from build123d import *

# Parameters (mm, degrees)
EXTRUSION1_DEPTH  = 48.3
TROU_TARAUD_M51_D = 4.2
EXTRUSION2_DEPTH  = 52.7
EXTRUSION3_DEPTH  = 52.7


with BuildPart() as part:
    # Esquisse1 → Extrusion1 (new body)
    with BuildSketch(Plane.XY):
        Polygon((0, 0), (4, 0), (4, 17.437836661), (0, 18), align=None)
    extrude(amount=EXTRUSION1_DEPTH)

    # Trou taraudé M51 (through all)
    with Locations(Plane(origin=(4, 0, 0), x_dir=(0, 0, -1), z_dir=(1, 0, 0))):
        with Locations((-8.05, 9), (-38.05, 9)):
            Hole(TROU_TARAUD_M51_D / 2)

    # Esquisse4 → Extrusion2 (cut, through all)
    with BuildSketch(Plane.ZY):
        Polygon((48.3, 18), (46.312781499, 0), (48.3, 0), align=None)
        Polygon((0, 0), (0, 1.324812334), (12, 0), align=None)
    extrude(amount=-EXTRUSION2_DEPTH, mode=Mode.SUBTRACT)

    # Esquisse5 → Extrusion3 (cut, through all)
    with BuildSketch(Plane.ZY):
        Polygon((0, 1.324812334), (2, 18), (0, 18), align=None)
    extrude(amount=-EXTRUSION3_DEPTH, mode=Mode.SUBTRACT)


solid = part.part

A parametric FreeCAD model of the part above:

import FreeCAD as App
import Part
import Sketcher

V = App.Vector
Q = App.Units.Quantity


def add_polygon(sketch, points):
    """Adds a closed chain of lines whose ends are joined by coincident constraints."""
    first, n = sketch.GeometryCount, len(points)
    for a, b in zip(points, points[1:] + points[:1]):
        sketch.addGeometry(Part.LineSegment(App.Vector(*a, 0), App.Vector(*b, 0)), False)
    for i in range(n):
        sketch.addConstraint(Sketcher.Constraint("Coincident", first + i, 2, first + (i + 1) % n, 1))

doc = App.newDocument("Part")
body = doc.addObject("PartDesign::Body", "Body")

# Sketch on XY plane
sketch1 = doc.addObject("Sketcher::SketchObject", "Sketch")
body.addObject(sketch1)
sketch1.AttachmentSupport = (doc.XY_Plane, [""])
sketch1.MapMode = "FlatFace"
add_polygon(sketch1, [(0, 0), (4, 0), (4, 17.4), (0, 18)])  # lines 0-3
sketch1.addConstraint(Sketcher.Constraint("Horizontal", 0))
sketch1.addConstraint(Sketcher.Constraint("Vertical", 1))
sketch1.addConstraint(Sketcher.Constraint("Vertical", 3))
sketch1.addConstraint(Sketcher.Constraint("Coincident", 3, 2, -1, 1))
sketch1.addConstraint(Sketcher.Constraint("DistanceX", 0, 1, 0, 2, Q("4 mm")))
sketch1.addConstraint(Sketcher.Constraint("DistanceY", 3, 2, 3, 1, Q("18 mm")))
sketch1.addConstraint(Sketcher.Constraint("Angle", 2, Q("172 deg")))
pad1 = doc.addObject("PartDesign::Pad", "Pad")
body.addObject(pad1)
pad1.Profile = sketch1
pad1.Length = 48.3

# Sketch on YZ plane
sketch2 = doc.addObject("Sketcher::SketchObject", "Sketch001")
body.addObject(sketch2)
sketch2.AttachmentSupport = (doc.YZ_Plane, [""])
sketch2.MapMode = "FlatFace"
sketch2.AttachmentOffset = App.Placement(V(0, 0, 4), App.Rotation())
sketch2.addGeometry(Part.Circle(V(9, 8.1, 0), V(0, 0, 1), 2.1), False)
sketch2.addGeometry(Part.Circle(V(9, 38, 0), V(0, 0, 1), 2.1), False)
sketch2.addConstraint(Sketcher.Constraint("Equal", 0, 1))
sketch2.addConstraint(Sketcher.Constraint("Vertical", 0, 3, 1, 3))
sketch2.addConstraint(Sketcher.Constraint("Diameter", 0, Q("4.2 mm")))
sketch2.addConstraint(Sketcher.Constraint("DistanceX", -1, 1, 0, 3, Q("9 mm")))
sketch2.addConstraint(Sketcher.Constraint("DistanceY", 0, 3, 1, 3, Q("30 mm")))
sketch2.addConstraint(Sketcher.Constraint("DistanceY", -1, 1, 0, 3, Q("8.05 mm")))
doc.recompute()
hole = doc.addObject("PartDesign::Hole", "Hole")
body.addObject(hole)
hole.Profile = sketch2
hole.ThreadType = "None"
hole.Diameter = 4.2
hole.DepthType = "ThroughAll"

# Sketch on YZ plane
sketch3 = doc.addObject("Sketcher::SketchObject", "Sketch002")
body.addObject(sketch3)
sketch3.AttachmentSupport = (doc.YZ_Plane, [""])
sketch3.MapMode = "FlatFace"
add_polygon(sketch3, [(18, 48.3), (0, 46.3), (0, 48.3)])  # lines 0-2
add_polygon(sketch3, [(1.3, 0), (0, 0), (0, 12)])  # lines 3-5
sketch3.addConstraint(Sketcher.Constraint("Vertical", 1))
sketch3.addConstraint(Sketcher.Constraint("Horizontal", 2))
sketch3.addConstraint(Sketcher.Constraint("Horizontal", 3))
sketch3.addConstraint(Sketcher.Constraint("Vertical", 4))
sketch3.addConstraint(Sketcher.Constraint("Coincident", 3, 2, -1, 1))
sketch3.addConstraint(Sketcher.Constraint("PointOnObject", 0, 2, -2))
sketch3.addConstraint(Sketcher.Constraint("Perpendicular", 0, 5))
sketch3.addConstraint(Sketcher.Constraint("DistanceX", 2, 1, 2, 2, Q("18 mm")))
sketch3.addConstraint(Sketcher.Constraint("DistanceY", 4, 1, 4, 2, Q("12 mm")))
sketch3.addConstraint(Sketcher.Constraint("Angle", 0, Q("-173.7 deg")))
sketch3.addConstraint(Sketcher.Constraint("DistanceY", -1, 1, 1, 2, Q("48.3 mm")))
pocket1 = doc.addObject("PartDesign::Pocket", "Pocket")
body.addObject(pocket1)
pocket1.Profile = sketch3
pocket1.Type = "ThroughAll"
pocket1.Reversed = True

# Sketch on YZ plane
sketch4 = doc.addObject("Sketcher::SketchObject", "Sketch003")
body.addObject(sketch4)
sketch4.AttachmentSupport = (doc.YZ_Plane, [""])
sketch4.MapMode = "FlatFace"
add_polygon(sketch4, [(1.3, 0), (18, 2), (18, 0)])  # lines 0-2
sketch4.addConstraint(Sketcher.Constraint("Vertical", 1))
sketch4.addConstraint(Sketcher.Constraint("Horizontal", 2))
sketch4.addConstraint(Sketcher.Constraint("PointOnObject", 1, 2, -1))
sketch4.addConstraint(Sketcher.Constraint("DistanceY", 1, 2, 1, 1, Q("2 mm")))
sketch4.addConstraint(Sketcher.Constraint("DistanceX", -1, 1, 0, 2, Q("18 mm")))
sketch4.addConstraint(Sketcher.Constraint("Distance", 0, Q("16.794698 mm")))
pocket2 = doc.addObject("PartDesign::Pocket", "Pocket001")
body.addObject(pocket2)
pocket2.Profile = sketch4
pocket2.Type = "ThroughAll"
pocket2.Reversed = True

doc.recompute()
